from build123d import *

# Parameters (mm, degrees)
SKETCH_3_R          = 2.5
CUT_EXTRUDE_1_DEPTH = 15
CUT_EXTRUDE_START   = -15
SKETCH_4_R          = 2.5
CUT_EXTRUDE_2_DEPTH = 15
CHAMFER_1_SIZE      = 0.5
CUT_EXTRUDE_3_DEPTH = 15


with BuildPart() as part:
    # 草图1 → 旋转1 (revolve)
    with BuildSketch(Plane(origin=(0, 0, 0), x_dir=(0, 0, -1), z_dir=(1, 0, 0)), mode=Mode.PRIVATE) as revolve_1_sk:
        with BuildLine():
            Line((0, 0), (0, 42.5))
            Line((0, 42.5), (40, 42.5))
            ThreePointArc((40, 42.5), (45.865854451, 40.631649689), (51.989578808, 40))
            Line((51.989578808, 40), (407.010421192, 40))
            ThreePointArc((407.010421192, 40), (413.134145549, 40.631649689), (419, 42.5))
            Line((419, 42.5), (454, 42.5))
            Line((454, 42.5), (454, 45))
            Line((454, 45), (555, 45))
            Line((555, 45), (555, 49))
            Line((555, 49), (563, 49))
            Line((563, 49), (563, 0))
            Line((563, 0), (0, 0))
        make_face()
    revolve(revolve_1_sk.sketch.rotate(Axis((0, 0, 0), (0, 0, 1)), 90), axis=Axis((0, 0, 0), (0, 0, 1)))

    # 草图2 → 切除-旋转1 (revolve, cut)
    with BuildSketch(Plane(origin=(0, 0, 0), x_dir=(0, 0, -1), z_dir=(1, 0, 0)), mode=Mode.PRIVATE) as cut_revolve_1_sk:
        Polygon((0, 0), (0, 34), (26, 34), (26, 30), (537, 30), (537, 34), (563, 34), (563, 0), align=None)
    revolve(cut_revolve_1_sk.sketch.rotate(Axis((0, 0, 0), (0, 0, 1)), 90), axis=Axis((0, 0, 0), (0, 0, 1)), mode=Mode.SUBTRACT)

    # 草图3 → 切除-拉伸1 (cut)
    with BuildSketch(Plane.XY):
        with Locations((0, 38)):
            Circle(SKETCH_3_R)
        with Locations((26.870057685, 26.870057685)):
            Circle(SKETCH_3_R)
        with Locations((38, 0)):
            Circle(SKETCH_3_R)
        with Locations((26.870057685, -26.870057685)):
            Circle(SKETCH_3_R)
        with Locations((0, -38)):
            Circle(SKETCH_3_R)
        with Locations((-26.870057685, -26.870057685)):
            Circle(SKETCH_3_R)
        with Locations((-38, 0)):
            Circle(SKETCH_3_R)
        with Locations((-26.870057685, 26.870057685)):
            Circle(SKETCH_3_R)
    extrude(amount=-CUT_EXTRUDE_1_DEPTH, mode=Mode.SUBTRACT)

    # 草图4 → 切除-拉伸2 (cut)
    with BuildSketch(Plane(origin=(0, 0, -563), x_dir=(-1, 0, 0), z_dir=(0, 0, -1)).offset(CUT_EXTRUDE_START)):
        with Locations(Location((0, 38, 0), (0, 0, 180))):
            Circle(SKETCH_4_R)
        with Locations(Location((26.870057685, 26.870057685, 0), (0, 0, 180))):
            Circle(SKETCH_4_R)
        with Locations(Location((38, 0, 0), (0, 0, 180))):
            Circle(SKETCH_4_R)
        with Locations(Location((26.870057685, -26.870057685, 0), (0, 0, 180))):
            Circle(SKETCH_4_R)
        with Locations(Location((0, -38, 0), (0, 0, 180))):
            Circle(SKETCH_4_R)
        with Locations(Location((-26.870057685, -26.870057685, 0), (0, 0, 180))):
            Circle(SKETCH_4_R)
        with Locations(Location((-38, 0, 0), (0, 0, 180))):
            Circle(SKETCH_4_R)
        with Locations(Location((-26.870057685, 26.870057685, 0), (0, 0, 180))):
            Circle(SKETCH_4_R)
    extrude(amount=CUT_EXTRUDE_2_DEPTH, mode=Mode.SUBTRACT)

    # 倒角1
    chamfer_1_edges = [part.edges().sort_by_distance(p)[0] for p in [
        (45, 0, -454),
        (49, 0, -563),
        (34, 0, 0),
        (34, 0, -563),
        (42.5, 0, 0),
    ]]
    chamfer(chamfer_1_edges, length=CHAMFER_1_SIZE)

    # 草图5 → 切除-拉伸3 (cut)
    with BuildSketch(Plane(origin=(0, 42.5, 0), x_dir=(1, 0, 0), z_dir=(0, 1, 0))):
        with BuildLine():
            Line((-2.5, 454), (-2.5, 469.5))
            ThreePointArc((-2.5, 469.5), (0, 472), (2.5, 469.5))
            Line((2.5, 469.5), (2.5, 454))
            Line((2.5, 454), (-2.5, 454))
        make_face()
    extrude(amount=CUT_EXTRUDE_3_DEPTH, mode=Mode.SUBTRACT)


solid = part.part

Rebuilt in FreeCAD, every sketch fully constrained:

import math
import FreeCAD as App
import Part
import Sketcher

V = App.Vector
Q = App.Units.Quantity


def edges_at(feature, points):
    """Names of the edges that pass closest to the given points."""
    edges = feature.Shape.Edges
    near = lambda p: min(range(len(edges)), key=lambda i: edges[i].distToShape(Part.Vertex(*p))[0])
    return sorted({f"Edge{near(p) + 1}" for p in points})

doc = App.newDocument("Part")
body = doc.addObject("PartDesign::Body", "Body")

sketch1 = body.newObject("Sketcher::SketchObject", "Sketch")
sketch1.AttachmentSupport = (doc.getObject("YZ_Plane"), [""])
sketch1.MapMode = "FlatFace"
sketch1.addGeometry([
    Part.LineSegment(V(42.5, 0, 0), V(0, 0, 0)),
    Part.LineSegment(V(0, 0, 0), V(0, -563, 0)),
    Part.LineSegment(V(0, -563, 0), V(49, -563, 0)),
    Part.LineSegment(V(49, -563, 0), V(49, -555, 0)),
    Part.LineSegment(V(49, -555, 0), V(45, -555, 0)),
    Part.LineSegment(V(45, -555, 0), V(45, -454, 0)),
    Part.LineSegment(V(45, -454, 0), V(42.5, -454, 0)),
    Part.LineSegment(V(42.5, -454, 0), V(42.5, -419, 0)),
    Part.ArcOfCircle(Part.Circle(V(70, -407, 0), V(0, 0, 1), 30), math.radians(-180), math.radians(-156)),
    Part.LineSegment(V(40, -407, 0), V(40, -52, 0)),
    Part.ArcOfCircle(Part.Circle(V(70, -52, 0), V(0, 0, 1), 30), math.radians(156), math.radians(180)),
    Part.LineSegment(V(42.5, -40, 0), V(42.5, 0, 0)),
], False)
sketch1.addConstraint([
    Sketcher.Constraint("Coincident", 0, 2, 1, 1),
    Sketcher.Constraint("Coincident", 1, 2, 2, 1),
    Sketcher.Constraint("Coincident", 2, 2, 3, 1),
    Sketcher.Constraint("Coincident", 3, 2, 4, 1),
    Sketcher.Constraint("Coincident", 4, 2, 5, 1),
    Sketcher.Constraint("Coincident", 5, 2, 6, 1),
    Sketcher.Constraint("Coincident", 6, 2, 7, 1),
    Sketcher.Constraint("Coincident", 7, 2, 8, 2),
    Sketcher.Constraint("Tangent", 8, 1, 9, 1),
    Sketcher.Constraint("Tangent", 9, 2, 10, 2),
    Sketcher.Constraint("Coincident", 10, 1, 11, 1),
    Sketcher.Constraint("Coincident", 11, 2, 0, 1),
    Sketcher.Constraint("Horizontal", 0),
    Sketcher.Constraint("Vertical", 1),
    Sketcher.Constraint("Horizontal", 2),
    Sketcher.Constraint("Vertical", 3),
    Sketcher.Constraint("Horizontal", 4),
    Sketcher.Constraint("Vertical", 5),
    Sketcher.Constraint("Horizontal", 6),
    Sketcher.Constraint("Vertical", 7),
    Sketcher.Constraint("Vertical", 9),
    Sketcher.Constraint("Vertical", 11),
    Sketcher.Constraint("Coincident", 0, 2, -1, 1),
    Sketcher.Constraint("Equal", 8, 10),
    Sketcher.Constraint("Vertical", 7, 2, 10, 1),
    Sketcher.Constraint("Radius", 8, Q("30 mm")),
    Sketcher.Constraint("DistanceX", 2, 1, 2, 2, Q("49 mm")),
    Sketcher.Constraint("DistanceX", 4, 2, 4, 1, Q("4 mm")),
    Sketcher.Constraint("DistanceY", 1, 2, 1, 1, Q("563 mm")),
    Sketcher.Constraint("DistanceY", 3, 1, 3, 2, Q("8 mm")),
    Sketcher.Constraint("DistanceY", 5, 1, 5, 2, Q("101 mm")),
    Sketcher.Constraint("DistanceY", 7, 1, 7, 2, Q("35 mm")),
    Sketcher.Constraint("DistanceY", 11, 1, 11, 2, Q("40 mm")),
    Sketcher.Constraint("DistanceX", 0, 2, 0, 1, Q("42.5 mm")),
    Sketcher.Constraint("DistanceX", -1, 1, 8, 3, Q("70 mm")),
])
revolution = body.newObject("PartDesign::Revolution", "Revolution")
revolution.Profile = sketch1
revolution.ReferenceAxis = (sketch1, ["V_Axis"])
revolution.Angle = 360

sketch2 = body.newObject("Sketcher::SketchObject", "Sketch001")
sketch2.AttachmentSupport = (doc.getObject("YZ_Plane"), [""])
sketch2.MapMode = "FlatFace"
sketch2.addGeometry([
    Part.LineSegment(V(34, 0, 0), V(0, 0, 0)),
    Part.LineSegment(V(0, 0, 0), V(0, -563, 0)),
    Part.LineSegment(V(0, -563, 0), V(34, -563, 0)),
    Part.LineSegment(V(34, -563, 0), V(34, -537, 0)),
    Part.LineSegment(V(34, -537, 0), V(30, -537, 0)),
    Part.LineSegment(V(30, -537, 0), V(30, -26, 0)),
    Part.LineSegment(V(30, -26, 0), V(34, -26, 0)),
    Part.LineSegment(V(34, -26, 0), V(34, 0, 0)),
], False)
sketch2.addConstraint([
    Sketcher.Constraint("Coincident", 0, 2, 1, 1),
    Sketcher.Constraint("Coincident", 1, 2, 2, 1),
    Sketcher.Constraint("Coincident", 2, 2, 3, 1),
    Sketcher.Constraint("Coincident", 3, 2, 4, 1),
    Sketcher.Constraint("Coincident", 4, 2, 5, 1),
    Sketcher.Constraint("Coincident", 5, 2, 6, 1),
    Sketcher.Constraint("Coincident", 6, 2, 7, 1),
    Sketcher.Constraint("Coincident", 7, 2, 0, 1),
    Sketcher.Constraint("Horizontal", 0),
    Sketcher.Constraint("Vertical", 1),
    Sketcher.Constraint("Horizontal", 2),
    Sketcher.Constraint("Vertical", 3),
    Sketcher.Constraint("Horizontal", 4),
    Sketcher.Constraint("Vertical", 5),
    Sketcher.Constraint("Horizontal", 6),
    Sketcher.Constraint("Vertical", 7),
    Sketcher.Constraint("Coincident", 0, 2, -1, 1),
    Sketcher.Constraint("Vertical", 3, 2, 6, 2),
    Sketcher.Constraint("Equal", 3, 7),
    Sketcher.Constraint("DistanceX", 0, 2, 0, 1, Q("34 mm")),
    Sketcher.Constraint("DistanceX", 4, 2, 4, 1, Q("4 mm")),
    Sketcher.Constraint("DistanceY", 1, 2, 1, 1, Q("563 mm")),
    Sketcher.Constraint("DistanceY", 3, 1, 3, 2, Q("26 mm")),
])
groove = body.newObject("PartDesign::Groove", "Groove")
groove.Profile = sketch2
groove.ReferenceAxis = (sketch2, ["V_Axis"])
groove.Angle = 360

sketch3 = body.newObject("Sketcher::SketchObject", "Sketch002")
sketch3.AttachmentSupport = (doc.getObject("XY_Plane"), [""])
sketch3.MapMode = "FlatFace"
sketch3.addGeometry([
    Part.Circle(V(0, 38, 0), V(0, 0, 1), 2.5),
    Part.Circle(V(26.9, 26.9, 0), V(0, 0, 1), 2.5),
    Part.Circle(V(38, 0, 0), V(0, 0, 1), 2.5),
    Part.Circle(V(26.9, -26.9, 0), V(0, 0, 1), 2.5),
    Part.Circle(V(0, -38, 0), V(0, 0, 1), 2.5),
    Part.Circle(V(-26.9, -26.9, 0), V(0, 0, 1), 2.5),
    Part.Circle(V(-38, 0, 0), V(0, 0, 1), 2.5),
    Part.Circle(V(-26.9, 26.9, 0), V(0, 0, 1), 2.5),
], False)
sketch3.addConstraint([
    Sketcher.Constraint("Equal", 0, 1),
    Sketcher.Constraint("Equal", 1, 2),
    Sketcher.Constraint("Equal", 2, 3),
    Sketcher.Constraint("Equal", 3, 4),
    Sketcher.Constraint("Equal", 4, 5),
    Sketcher.Constraint("Equal", 5, 6),
    Sketcher.Constraint("Equal", 6, 7),
    Sketcher.Constraint("Symmetric", 0, 3, 4, 3, -1, 1),
    Sketcher.Constraint("Symmetric", 1, 3, 5, 3, -1, 1),
    Sketcher.Constraint("Symmetric", 2, 3, 6, 3, -1, 1),
    Sketcher.Constraint("Symmetric", 3, 3, 7, 3, -1, 1),
    Sketcher.Constraint("Symmetric", 3, 3, 5, 3, -2),
    Sketcher.Constraint("PointOnObject", 0, 3, -2),
    Sketcher.Constraint("PointOnObject", 2, 3, -1),
    Sketcher.Constraint("Diameter", 0, Q("5 mm")),
    Sketcher.Constraint("DistanceY", -1, 1, 0, 3, Q("38 mm")),
    Sketcher.Constraint("DistanceX", -1, 1, 2, 3, Q("38 mm")),
    Sketcher.Constraint("DistanceX", -1, 1, 1, 3, Q("26.870058 mm")),
    Sketcher.Constraint("DistanceY", -1, 1, 1, 3, Q("26.870058 mm")),
])
pocket1 = body.newObject("PartDesign::Pocket", "Pocket")
pocket1.Profile = sketch3
pocket1.Length = 15

sketch4 = body.newObject("Sketcher::SketchObject", "Sketch003")
sketch4.AttachmentSupport = (doc.getObject("XY_Plane"), [""])
sketch4.MapMode = "FlatFace"
sketch4.AttachmentOffset = App.Placement(V(0, 0, -548), App.Rotation())
sketch4.addGeometry([
    Part.Circle(V(0, 38, 0), V(0, 0, 1), 2.5),
    Part.Circle(V(-26.9, 26.9, 0), V(0, 0, 1), 2.5),
    Part.Circle(V(-38, 0, 0), V(0, 0, 1), 2.5),
    Part.Circle(V(-26.9, -26.9, 0), V(0, 0, 1), 2.5),
    Part.Circle(V(0, -38, 0), V(0, 0, 1), 2.5),
    Part.Circle(V(26.9, -26.9, 0), V(0, 0, 1), 2.5),
    Part.Circle(V(38, 0, 0), V(0, 0, 1), 2.5),
    Part.Circle(V(26.9, 26.9, 0), V(0, 0, 1), 2.5),
], False)
sketch4.addConstraint([
    Sketcher.Constraint("Equal", 0, 1),
    Sketcher.Constraint("Equal", 1, 2),
    Sketcher.Constraint("Equal", 2, 3),
    Sketcher.Constraint("Equal", 3, 4),
    Sketcher.Constraint("Equal", 4, 5),
    Sketcher.Constraint("Equal", 5, 6),
    Sketcher.Constraint("Equal", 6, 7),
    Sketcher.Constraint("Symmetric", 0, 3, 4, 3, -1, 1),
    Sketcher.Constraint("Symmetric", 1, 3, 5, 3, -1, 1),
    Sketcher.Constraint("Symmetric", 2, 3, 6, 3, -1, 1),
    Sketcher.Constraint("Symmetric", 3, 3, 7, 3, -1, 1),
    Sketcher.Constraint("Symmetric", 3, 3, 5, 3, -2),
    Sketcher.Constraint("PointOnObject", 0, 3, -2),
    Sketcher.Constraint("PointOnObject", 2, 3, -1),
    Sketcher.Constraint("Diameter", 0, Q("5 mm")),
    Sketcher.Constraint("DistanceY", -1, 1, 0, 3, Q("38 mm")),
    Sketcher.Constraint("DistanceX", 2, 3, -1, 1, Q("38 mm")),
    Sketcher.Constraint("DistanceX", 1, 3, -1, 1, Q("26.870058 mm")),
    Sketcher.Constraint("DistanceY", -1, 1, 1, 3, Q("26.870058 mm")),
])
pocket2 = body.newObject("PartDesign::Pocket", "Pocket001")
pocket2.Profile = sketch4
pocket2.Length = 15
doc.recompute()

chamfer = body.newObject("PartDesign::Chamfer", "Chamfer")
chamfer.Base = (pocket2, edges_at(pocket2, [
    (45, 0, -454),
    (49, 0, -563),
    (34, 0, 0),
    (34, 0, -563),
    (42.5, 0, 0),
]))
chamfer.Size = 0.5

sketch5 = body.newObject("Sketcher::SketchObject", "Sketch004")
sketch5.AttachmentSupport = (doc.getObject("XZ_Plane"), [""])
sketch5.MapMode = "FlatFace"
sketch5.AttachmentOffset = App.Placement(V(0, 0, -42.5), App.Rotation())
sketch5.addGeometry([
    Part.LineSegment(V(-2.5, -469.5, 0), V(-2.5, -454, 0)),
    Part.LineSegment(V(-2.5, -454, 0), V(2.5, -454, 0)),
    Part.LineSegment(V(2.5, -454, 0), V(2.5, -469.5, 0)),
    Part.ArcOfCircle(Part.Circle(V(0, -469.5, 0), V(0, 0, 1), 2.5), math.radians(180), math.radians(360)),
], False)
sketch5.addConstraint([
    Sketcher.Constraint("Coincident", 0, 2, 1, 1),
    Sketcher.Constraint("Coincident", 1, 2, 2, 1),
    Sketcher.Constraint("Tangent", 2, 2, 3, 2),
    Sketcher.Constraint("Tangent", 3, 1, 0, 1),
    Sketcher.Constraint("Vertical", 0),
    Sketcher.Constraint("Horizontal", 1),
    Sketcher.Constraint("Vertical", 2),
    Sketcher.Constraint("PointOnObject", 3, 3, -2),
    Sketcher.Constraint("Radius", 3, Q("2.5 mm")),
    Sketcher.Constraint("DistanceY", 0, 1, 0, 2, Q("15.5 mm")),
    Sketcher.Constraint("DistanceY", 0, 2, -1, 1, Q("454 mm")),
])
pocket3 = body.newObject("PartDesign::Pocket", "Pocket002")
pocket3.Profile = sketch5
pocket3.Length = 15

doc.recompute()
